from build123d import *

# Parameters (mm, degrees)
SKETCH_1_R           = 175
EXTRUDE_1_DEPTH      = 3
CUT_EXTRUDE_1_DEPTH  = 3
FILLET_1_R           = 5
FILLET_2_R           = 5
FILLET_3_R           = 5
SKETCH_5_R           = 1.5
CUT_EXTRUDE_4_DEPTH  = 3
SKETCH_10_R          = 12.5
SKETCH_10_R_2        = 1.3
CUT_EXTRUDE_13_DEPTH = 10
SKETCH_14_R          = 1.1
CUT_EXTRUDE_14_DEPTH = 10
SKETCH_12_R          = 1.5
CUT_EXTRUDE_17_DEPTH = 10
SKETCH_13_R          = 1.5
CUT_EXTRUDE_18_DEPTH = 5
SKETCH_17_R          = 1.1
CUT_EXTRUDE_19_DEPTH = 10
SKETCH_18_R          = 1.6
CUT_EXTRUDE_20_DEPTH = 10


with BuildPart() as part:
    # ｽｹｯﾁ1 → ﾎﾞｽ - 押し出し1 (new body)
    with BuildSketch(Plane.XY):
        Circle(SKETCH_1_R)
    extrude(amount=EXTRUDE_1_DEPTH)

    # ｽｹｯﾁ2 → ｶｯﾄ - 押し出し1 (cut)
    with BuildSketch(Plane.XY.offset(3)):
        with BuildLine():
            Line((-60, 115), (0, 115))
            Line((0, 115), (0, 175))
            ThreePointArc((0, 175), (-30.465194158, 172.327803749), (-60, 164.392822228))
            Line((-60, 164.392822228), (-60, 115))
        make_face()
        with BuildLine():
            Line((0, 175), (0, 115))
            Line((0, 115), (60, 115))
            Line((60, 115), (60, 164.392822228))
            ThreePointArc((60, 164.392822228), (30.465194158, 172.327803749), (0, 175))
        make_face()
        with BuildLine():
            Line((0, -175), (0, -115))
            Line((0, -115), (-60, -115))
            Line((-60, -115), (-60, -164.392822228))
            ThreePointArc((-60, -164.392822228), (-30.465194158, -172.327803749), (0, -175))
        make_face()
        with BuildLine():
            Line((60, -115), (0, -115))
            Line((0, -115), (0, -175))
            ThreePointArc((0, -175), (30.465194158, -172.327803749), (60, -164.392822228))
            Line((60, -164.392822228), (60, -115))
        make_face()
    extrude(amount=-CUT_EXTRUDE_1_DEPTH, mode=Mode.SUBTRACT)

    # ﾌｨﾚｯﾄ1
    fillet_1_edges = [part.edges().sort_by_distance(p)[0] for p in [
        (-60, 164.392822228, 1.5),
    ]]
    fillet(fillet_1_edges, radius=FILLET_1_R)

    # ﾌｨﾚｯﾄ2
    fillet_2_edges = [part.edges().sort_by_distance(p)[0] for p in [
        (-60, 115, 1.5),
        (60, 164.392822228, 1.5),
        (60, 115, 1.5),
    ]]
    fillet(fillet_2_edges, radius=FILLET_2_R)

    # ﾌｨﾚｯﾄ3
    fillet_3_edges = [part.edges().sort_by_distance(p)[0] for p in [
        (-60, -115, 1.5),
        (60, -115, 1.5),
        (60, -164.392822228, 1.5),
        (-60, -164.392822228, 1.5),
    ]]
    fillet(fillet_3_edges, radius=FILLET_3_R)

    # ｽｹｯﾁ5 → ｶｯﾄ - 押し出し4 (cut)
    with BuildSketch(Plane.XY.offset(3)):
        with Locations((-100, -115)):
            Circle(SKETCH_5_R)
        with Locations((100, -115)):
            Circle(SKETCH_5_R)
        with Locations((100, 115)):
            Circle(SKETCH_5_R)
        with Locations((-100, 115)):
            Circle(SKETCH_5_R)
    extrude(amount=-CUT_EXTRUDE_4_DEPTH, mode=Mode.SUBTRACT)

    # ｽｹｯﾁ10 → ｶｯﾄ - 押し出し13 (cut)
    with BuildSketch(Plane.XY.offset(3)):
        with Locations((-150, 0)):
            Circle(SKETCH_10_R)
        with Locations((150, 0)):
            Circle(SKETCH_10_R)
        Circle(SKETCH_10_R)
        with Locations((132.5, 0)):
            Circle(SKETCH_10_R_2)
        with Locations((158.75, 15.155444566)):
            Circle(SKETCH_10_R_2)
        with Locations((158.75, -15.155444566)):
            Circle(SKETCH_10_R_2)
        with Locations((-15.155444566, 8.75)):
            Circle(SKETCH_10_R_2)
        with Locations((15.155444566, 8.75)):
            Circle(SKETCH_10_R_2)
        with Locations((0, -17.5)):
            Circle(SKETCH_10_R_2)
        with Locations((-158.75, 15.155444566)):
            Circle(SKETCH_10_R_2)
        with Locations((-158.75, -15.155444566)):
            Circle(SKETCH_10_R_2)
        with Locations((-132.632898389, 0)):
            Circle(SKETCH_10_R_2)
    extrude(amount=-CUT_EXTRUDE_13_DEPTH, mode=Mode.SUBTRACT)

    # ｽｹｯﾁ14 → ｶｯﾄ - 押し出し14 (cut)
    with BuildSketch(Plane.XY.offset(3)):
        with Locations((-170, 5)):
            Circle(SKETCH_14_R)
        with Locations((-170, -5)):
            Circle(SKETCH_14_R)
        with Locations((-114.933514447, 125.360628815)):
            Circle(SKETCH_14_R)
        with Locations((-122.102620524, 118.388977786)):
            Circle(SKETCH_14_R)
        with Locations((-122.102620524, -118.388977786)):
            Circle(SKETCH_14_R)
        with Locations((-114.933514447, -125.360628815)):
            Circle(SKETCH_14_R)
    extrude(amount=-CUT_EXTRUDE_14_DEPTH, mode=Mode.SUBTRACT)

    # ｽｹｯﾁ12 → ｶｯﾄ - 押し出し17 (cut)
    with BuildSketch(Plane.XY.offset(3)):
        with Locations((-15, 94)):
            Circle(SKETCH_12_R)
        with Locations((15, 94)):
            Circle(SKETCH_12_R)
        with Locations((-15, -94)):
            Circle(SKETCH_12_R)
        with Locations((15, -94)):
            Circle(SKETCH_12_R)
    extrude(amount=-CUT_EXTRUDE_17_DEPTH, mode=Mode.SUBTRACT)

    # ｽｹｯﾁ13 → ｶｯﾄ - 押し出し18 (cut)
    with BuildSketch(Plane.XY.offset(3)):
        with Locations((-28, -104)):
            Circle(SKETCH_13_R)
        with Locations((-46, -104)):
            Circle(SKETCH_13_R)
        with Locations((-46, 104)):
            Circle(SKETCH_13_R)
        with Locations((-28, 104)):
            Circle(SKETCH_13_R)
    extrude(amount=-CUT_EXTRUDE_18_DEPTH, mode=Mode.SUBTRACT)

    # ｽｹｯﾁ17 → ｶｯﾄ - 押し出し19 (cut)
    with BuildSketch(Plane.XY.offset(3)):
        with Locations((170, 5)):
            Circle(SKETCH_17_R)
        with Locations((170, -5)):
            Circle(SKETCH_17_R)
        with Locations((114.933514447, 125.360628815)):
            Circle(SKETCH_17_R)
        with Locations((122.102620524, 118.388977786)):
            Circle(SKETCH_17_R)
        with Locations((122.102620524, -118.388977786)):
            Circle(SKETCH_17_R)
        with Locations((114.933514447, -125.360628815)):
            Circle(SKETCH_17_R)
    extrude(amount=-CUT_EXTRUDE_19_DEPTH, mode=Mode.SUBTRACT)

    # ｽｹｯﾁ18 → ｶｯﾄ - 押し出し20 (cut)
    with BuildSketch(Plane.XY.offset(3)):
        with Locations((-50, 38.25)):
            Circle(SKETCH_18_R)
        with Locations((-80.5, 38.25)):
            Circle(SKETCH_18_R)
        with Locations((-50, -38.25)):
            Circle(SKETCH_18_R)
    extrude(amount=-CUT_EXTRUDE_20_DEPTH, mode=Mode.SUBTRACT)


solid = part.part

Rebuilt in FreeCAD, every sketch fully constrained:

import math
import FreeCAD as App
import Part
import Sketcher

V = App.Vector


def edges_at(feature, points):
    """Names of the edges that pass closest to the given points."""
    edges = feature.Shape.Edges
    near = lambda p: min(range(len(edges)), key=lambda i: edges[i].distToShape(Part.Vertex(*p))[0])
    return sorted({f"Edge{near(p) + 1}" for p in points})

doc = App.newDocument("Part")
body = doc.addObject("PartDesign::Body", "Body")

# Sketch on XY plane
sketch1 = body.newObject("Sketcher::SketchObject", "Sketch")
sketch1.AttachmentSupport = (doc.getObject("XY_Plane"), [""])
sketch1.MapMode = "FlatFace"
sketch1.addGeometry(Part.Circle(V(0, 0, 0), V(0, 0, 1), 175), False)
sketch1.addConstraint(Sketcher.Constraint("Coincident", 0, 3, -1, 1))
sketch1.addConstraint(Sketcher.Constraint("Diameter", 0, 350.0))
pad1 = body.newObject("PartDesign::Pad", "Pad")
pad1.Profile = sketch1
pad1.Length = 3

# Sketch on XY plane
sketch2 = body.newObject("Sketcher::SketchObject", "Sketch001")
sketch2.AttachmentSupport = (doc.getObject("XY_Plane"), [""])
sketch2.MapMode = "FlatFace"
sketch2.AttachmentOffset = App.Placement(V(0, 0, 3), App.Rotation())
sketch2.addGeometry(Part.LineSegment(V(-60, 115, 0), V(60, 115, 0)), False)
sketch2.addGeometry(Part.LineSegment(V(60, 115, 0), V(60, 164.392822, 0)), False)
sketch2.addGeometry(Part.ArcOfCircle(Part.Circle(V(0, 0, 0), V(0, 0, 1), 175), math.radians(69.948957), math.radians(90)), False)
sketch2.addGeometry(Part.ArcOfCircle(Part.Circle(V(0, 0, 0), V(0, 0, 1), 175), math.radians(90), math.radians(110.051043)), False)
sketch2.addGeometry(Part.LineSegment(V(-60, 164.392822, 0), V(-60, 115, 0)), False)
sketch2.addGeometry(Part.LineSegment(V(-60, -115, 0), V(-60, -164.392822, 0)), False)
sketch2.addGeometry(Part.ArcOfCircle(Part.Circle(V(0, 0, 0), V(0, 0, 1), 175), math.radians(-110.051043), math.radians(-90)), False)
sketch2.addGeometry(Part.ArcOfCircle(Part.Circle(V(0, 0, 0), V(0, 0, 1), 175), math.radians(-90), math.radians(-69.948957)), False)
sketch2.addGeometry(Part.LineSegment(V(60, -164.392822, 0), V(60, -115, 0)), False)
sketch2.addGeometry(Part.LineSegment(V(60, -115, 0), V(-60, -115, 0)), False)
sketch2.addConstraint(Sketcher.Constraint("Coincident", 0, 2, 1, 1))
sketch2.addConstraint(Sketcher.Constraint("Coincident", 1, 2, 2, 1))
sketch2.addConstraint(Sketcher.Constraint("Tangent", 2, 2, 3, 1))
sketch2.addConstraint(Sketcher.Constraint("Coincident", 3, 2, 4, 1))
sketch2.addConstraint(Sketcher.Constraint("Coincident", 4, 2, 0, 1))
sketch2.addConstraint(Sketcher.Constraint("Coincident", 5, 2, 6, 1))
sketch2.addConstraint(Sketcher.Constraint("Tangent", 6, 2, 7, 1))
sketch2.addConstraint(Sketcher.Constraint("Coincident", 7, 2, 8, 1))
sketch2.addConstraint(Sketcher.Constraint("Coincident", 8, 2, 9, 1))
sketch2.addConstraint(Sketcher.Constraint("Coincident", 9, 2, 5, 1))
sketch2.addConstraint(Sketcher.Constraint("Horizontal", 0))
sketch2.addConstraint(Sketcher.Constraint("Vertical", 1))
sketch2.addConstraint(Sketcher.Constraint("Vertical", 4))
sketch2.addConstraint(Sketcher.Constraint("Vertical", 5))
sketch2.addConstraint(Sketcher.Constraint("Vertical", 8))
sketch2.addConstraint(Sketcher.Constraint("Horizontal", 9))
sketch2.addConstraint(Sketcher.Constraint("Coincident", 2, 3, -1, 1))
sketch2.addConstraint(Sketcher.Constraint("Coincident", 6, 3, -1, 1))
sketch2.addConstraint(Sketcher.Constraint("Equal", 2, 3))
sketch2.addConstraint(Sketcher.Constraint("Equal", 3, 6))
sketch2.addConstraint(Sketcher.Constraint("Equal", 6, 7))
sketch2.addConstraint(Sketcher.Constraint("Symmetric", 4, 2, 8, 2, -1, 1))
sketch2.addConstraint(Sketcher.Constraint("PointOnObject", 2, 2, -2))
sketch2.addConstraint(Sketcher.Constraint("PointOnObject", 6, 2, -2))
sketch2.addConstraint(Sketcher.Constraint("Horizontal", 1, 2, 3, 2))
sketch2.addConstraint(Sketcher.Constraint("Horizontal", 5, 2, 7, 2))
sketch2.addConstraint(Sketcher.Constraint("Radius", 2, 175.0))
sketch2.addConstraint(Sketcher.Constraint("DistanceX", 0, 1, 0, 2, 120.0))
sketch2.addConstraint(Sketcher.Constraint("DistanceY", -1, 1, 0, 2, 115.0))
pocket1 = body.newObject("PartDesign::Pocket", "Pocket")
pocket1.Profile = sketch2
pocket1.Length = 3
doc.recompute()

fillet = body.newObject("PartDesign::Fillet", "Fillet")
fillet.Base = (pocket1, edges_at(pocket1, [(-60, 164.393, 1.5)]))
fillet.Radius = 5
doc.recompute()

fillet2 = body.newObject("PartDesign::Fillet", "Fillet001")
fillet2.Base = (fillet, edges_at(fillet, [(-60, 115, 1.5), (60, 164.393, 1.5), (60, 115, 1.5)]))
fillet2.Radius = 5
doc.recompute()

fillet3 = body.newObject("PartDesign::Fillet", "Fillet002")
fillet3.Base = (fillet2, edges_at(fillet2, [
    (-60, -115, 1.5),
    (60, -115, 1.5),
    (60, -164.393, 1.5),
    (-60, -164.393, 1.5),
]))
fillet3.Radius = 5

# Sketch on XY plane
sketch3 = body.newObject("Sketcher::SketchObject", "Sketch002")
sketch3.AttachmentSupport = (doc.getObject("XY_Plane"), [""])
sketch3.MapMode = "FlatFace"
sketch3.AttachmentOffset = App.Placement(V(0, 0, 3), App.Rotation())
sketch3.addGeometry(Part.Circle(V(-100, -115, 0), V(0, 0, 1), 1.5), False)
sketch3.addGeometry(Part.Circle(V(100, -115, 0), V(0, 0, 1), 1.5), False)
sketch3.addGeometry(Part.Circle(V(100, 115, 0), V(0, 0, 1), 1.5), False)
sketch3.addGeometry(Part.Circle(V(-100, 115, 0), V(0, 0, 1), 1.5), False)
sketch3.addConstraint(Sketcher.Constraint("Equal", 0, 1))
sketch3.addConstraint(Sketcher.Constraint("Equal", 1, 2))
sketch3.addConstraint(Sketcher.Constraint("Equal", 2, 3))
sketch3.addConstraint(Sketcher.Constraint("Symmetric", 0, 3, 2, 3, -1, 1))
sketch3.addConstraint(Sketcher.Constraint("Symmetric", 1, 3, 3, 3, -1, 1))
sketch3.addConstraint(Sketcher.Constraint("Symmetric", 0, 3, 1, 3, -2))
sketch3.addConstraint(Sketcher.Constraint("Diameter", 0, 3.0))
sketch3.addConstraint(Sketcher.Constraint("DistanceX", 0, 3, -1, 1, 100.0))
sketch3.addConstraint(Sketcher.Constraint("DistanceY", 0, 3, -1, 1, 115.0))
pocket2 = body.newObject("PartDesign::Pocket", "Pocket001")
pocket2.Profile = sketch3
pocket2.Length = 3

# Sketch on XY plane
sketch4 = body.newObject("Sketcher::SketchObject", "Sketch003")
sketch4.AttachmentSupport = (doc.getObject("XY_Plane"), [""])
sketch4.MapMode = "FlatFace"
sketch4.AttachmentOffset = App.Placement(V(0, 0, 3), App.Rotation())
sketch4.addGeometry(Part.Circle(V(-150, 0, 0), V(0, 0, 1), 12.5), False)
sketch4.addGeometry(Part.Circle(V(150, 0, 0), V(0, 0, 1), 12.5), False)
sketch4.addGeometry(Part.Circle(V(0, 0, 0), V(0, 0, 1), 12.5), False)
sketch4.addGeometry(Part.Circle(V(132.5, 0, 0), V(0, 0, 1), 1.3), False)
sketch4.addGeometry(Part.Circle(V(158.75, 15.155445, 0), V(0, 0, 1), 1.3), False)
sketch4.addGeometry(Part.Circle(V(158.75, -15.155445, 0), V(0, 0, 1), 1.3), False)
sketch4.addGeometry(Part.Circle(V(-15.155445, 8.75, 0), V(0, 0, 1), 1.3), False)
sketch4.addGeometry(Part.Circle(V(15.155445, 8.75, 0), V(0, 0, 1), 1.3), False)
sketch4.addGeometry(Part.Circle(V(0, -17.5, 0), V(0, 0, 1), 1.3), False)
sketch4.addGeometry(Part.Circle(V(-158.75, 15.155445, 0), V(0, 0, 1), 1.3), False)
sketch4.addGeometry(Part.Circle(V(-158.75, -15.155445, 0), V(0, 0, 1), 1.3), False)
sketch4.addGeometry(Part.Circle(V(-132.632898, 0, 0), V(0, 0, 1), 1.3), False)
sketch4.addConstraint(Sketcher.Constraint("Coincident", 2, 3, -1, 1))
sketch4.addConstraint(Sketcher.Constraint("Equal", 0, 1))
sketch4.addConstraint(Sketcher.Constraint("Equal", 1, 2))
sketch4.addConstraint(Sketcher.Constraint("Equal", 3, 4))
sketch4.addConstraint(Sketcher.Constraint("Equal", 4, 5))
sketch4.addConstraint(Sketcher.Constraint("Equal", 5, 6))
sketch4.addConstraint(Sketcher.Constraint("Equal", 6, 7))
sketch4.addConstraint(Sketcher.Constraint("Equal", 7, 8))
sketch4.addConstraint(Sketcher.Constraint("Equal", 8, 9))
sketch4.addConstraint(Sketcher.Constraint("Equal", 9, 10))
sketch4.addConstraint(Sketcher.Constraint("Equal", 10, 11))
sketch4.addConstraint(Sketcher.Constraint("Symmetric", 0, 3, 1, 3, -1, 1))
sketch4.addConstraint(Sketcher.Constraint("Symmetric", 5, 3, 9, 3, -1, 1))
sketch4.addConstraint(Sketcher.Constraint("Symmetric", 4, 3, 10, 3, -1, 1))
sketch4.addConstraint(Sketcher.Constraint("Symmetric", 6, 3, 7, 3, -2))
sketch4.addConstraint(Sketcher.Constraint("Symmetric", 4, 3, 9, 3, -2))
sketch4.addConstraint(Sketcher.Constraint("PointOnObject", 0, 3, -1))
sketch4.addConstraint(Sketcher.Constraint("PointOnObject", 3, 3, -1))
sketch4.addConstraint(Sketcher.Constraint("PointOnObject", 8, 3, -2))
sketch4.addConstraint(Sketcher.Constraint("PointOnObject", 11, 3, -1))
sketch4.addConstraint(Sketcher.Constraint("Diameter", 0, 25.0))
sketch4.addConstraint(Sketcher.Constraint("Diameter", 3, 2.6))
sketch4.addConstraint(Sketcher.Constraint("DistanceX", 0, 3, -1, 1, 150.0))
sketch4.addConstraint(Sketcher.Constraint("DistanceX", -1, 1, 3, 3, 132.5))
sketch4.addConstraint(Sketcher.Constraint("DistanceY", 8, 3, -1, 1, 17.5))
sketch4.addConstraint(Sketcher.Constraint("DistanceX", -1, 1, 4, 3, 158.75))
sketch4.addConstraint(Sketcher.Constraint("DistanceY", -1, 1, 6, 3, 8.75))
sketch4.addConstraint(Sketcher.Constraint("DistanceX", 11, 3, -1, 1, 132.632898))
sketch4.addConstraint(Sketcher.Constraint("DistanceY", 5, 3, 4, 3, 30.310889))
sketch4.addConstraint(Sketcher.Constraint("DistanceX", 6, 3, 7, 3, 30.310889))
pocket3 = body.newObject("PartDesign::Pocket", "Pocket002")
pocket3.Profile = sketch4
pocket3.Length = 10

# Sketch on XY plane
sketch5 = body.newObject("Sketcher::SketchObject", "Sketch004")
sketch5.AttachmentSupport = (doc.getObject("XY_Plane"), [""])
sketch5.MapMode = "FlatFace"
sketch5.AttachmentOffset = App.Placement(V(0, 0, 3), App.Rotation())
sketch5.addGeometry(Part.Circle(V(-170, 5, 0), V(0, 0, 1), 1.1), False)
sketch5.addGeometry(Part.Circle(V(-170, -5, 0), V(0, 0, 1), 1.1), False)
sketch5.addGeometry(Part.Circle(V(-114.933514, 125.360629, 0), V(0, 0, 1), 1.1), False)
sketch5.addGeometry(Part.Circle(V(-122.102621, 118.388978, 0), V(0, 0, 1), 1.1), False)
sketch5.addGeometry(Part.Circle(V(-122.102621, -118.388978, 0), V(0, 0, 1), 1.1), False)
sketch5.addGeometry(Part.Circle(V(-114.933514, -125.360629, 0), V(0, 0, 1), 1.1), False)
sketch5.addConstraint(Sketcher.Constraint("Equal", 0, 1))
sketch5.addConstraint(Sketcher.Constraint("Equal", 1, 2))
sketch5.addConstraint(Sketcher.Constraint("Equal", 2, 3))
sketch5.addConstraint(Sketcher.Constraint("Equal", 3, 4))
sketch5.addConstraint(Sketcher.Constraint("Equal", 4, 5))
sketch5.addConstraint(Sketcher.Constraint("Symmetric", 0, 3, 1, 3, -1))
sketch5.addConstraint(Sketcher.Constraint("Symmetric", 3, 3, 4, 3, -1))
sketch5.addConstraint(Sketcher.Constraint("Symmetric", 2, 3, 5, 3, -1))
sketch5.addConstraint(Sketcher.Constraint("Diameter", 0, 2.2))
sketch5.addConstraint(Sketcher.Constraint("DistanceX", 0, 3, -1, 1, 170.0))
sketch5.addConstraint(Sketcher.Constraint("DistanceY", -1, 1, 0, 3, 5.0))
sketch5.addConstraint(Sketcher.Constraint("DistanceY", -1, 1, 2, 3, 125.360629))
sketch5.addConstraint(Sketcher.Constraint("DistanceX", 3, 3, -1, 1, 122.102621))
sketch5.addConstraint(Sketcher.Constraint("DistanceY", 3, 3, 2, 3, 6.971651))
sketch5.addConstraint(Sketcher.Constraint("DistanceX", 2, 3, -1, 1, 114.933514))
pocket4 = body.newObject("PartDesign::Pocket", "Pocket003")
pocket4.Profile = sketch5
pocket4.Length = 10

# Sketch on XY plane
sketch6 = body.newObject("Sketcher::SketchObject", "Sketch005")
sketch6.AttachmentSupport = (doc.getObject("XY_Plane"), [""])
sketch6.MapMode = "FlatFace"
sketch6.AttachmentOffset = App.Placement(V(0, 0, 3), App.Rotation())
sketch6.addGeometry(Part.Circle(V(-15, 94, 0), V(0, 0, 1), 1.5), False)
sketch6.addGeometry(Part.Circle(V(15, 94, 0), V(0, 0, 1), 1.5), False)
sketch6.addGeometry(Part.Circle(V(-15, -94, 0), V(0, 0, 1), 1.5), False)
sketch6.addGeometry(Part.Circle(V(15, -94, 0), V(0, 0, 1), 1.5), False)
sketch6.addConstraint(Sketcher.Constraint("Equal", 0, 1))
sketch6.addConstraint(Sketcher.Constraint("Equal", 1, 2))
sketch6.addConstraint(Sketcher.Constraint("Equal", 2, 3))
sketch6.addConstraint(Sketcher.Constraint("Symmetric", 1, 3, 2, 3, -1, 1))
sketch6.addConstraint(Sketcher.Constraint("Symmetric", 0, 3, 3, 3, -1, 1))
sketch6.addConstraint(Sketcher.Constraint("Symmetric", 0, 3, 1, 3, -2))
sketch6.addConstraint(Sketcher.Constraint("Diameter", 0, 3.0))
sketch6.addConstraint(Sketcher.Constraint("DistanceX", 0, 3, -1, 1, 15.0))
sketch6.addConstraint(Sketcher.Constraint("DistanceY", -1, 1, 0, 3, 94.0))
pocket5 = body.newObject("PartDesign::Pocket", "Pocket004")
pocket5.Profile = sketch6
pocket5.Length = 10

# Sketch on XY plane
sketch7 = body.newObject("Sketcher::SketchObject", "Sketch006")
sketch7.AttachmentSupport = (doc.getObject("XY_Plane"), [""])
sketch7.MapMode = "FlatFace"
sketch7.AttachmentOffset = App.Placement(V(0, 0, 3), App.Rotation())
sketch7.addGeometry(Part.Circle(V(-28, -104, 0), V(0, 0, 1), 1.5), False)
sketch7.addGeometry(Part.Circle(V(-46, -104, 0), V(0, 0, 1), 1.5), False)
sketch7.addGeometry(Part.Circle(V(-46, 104, 0), V(0, 0, 1), 1.5), False)
sketch7.addGeometry(Part.Circle(V(-28, 104, 0), V(0, 0, 1), 1.5), False)
sketch7.addConstraint(Sketcher.Constraint("Equal", 0, 1))
sketch7.addConstraint(Sketcher.Constraint("Equal", 1, 2))
sketch7.addConstraint(Sketcher.Constraint("Equal", 2, 3))
sketch7.addConstraint(Sketcher.Constraint("Symmetric", 1, 3, 2, 3, -1))
sketch7.addConstraint(Sketcher.Constraint("Symmetric", 0, 3, 3, 3, -1))
sketch7.addConstraint(Sketcher.Constraint("Horizontal", 0, 3, 1, 3))
sketch7.addConstraint(Sketcher.Constraint("Diameter", 0, 3.0))
sketch7.addConstraint(Sketcher.Constraint("DistanceX", 0, 3, -1, 1, 28.0))
sketch7.addConstraint(Sketcher.Constraint("DistanceY", 0, 3, -1, 1, 104.0))
sketch7.addConstraint(Sketcher.Constraint("DistanceX", 1, 3, -1, 1, 46.0))
pocket6 = body.newObject("PartDesign::Pocket", "Pocket005")
pocket6.Profile = sketch7
pocket6.Length = 5

# Sketch on XY plane
sketch8 = body.newObject("Sketcher::SketchObject", "Sketch007")
sketch8.AttachmentSupport = (doc.getObject("XY_Plane"), [""])
sketch8.MapMode = "FlatFace"
sketch8.AttachmentOffset = App.Placement(V(0, 0, 3), App.Rotation())
sketch8.addGeometry(Part.Circle(V(170, 5, 0), V(0, 0, 1), 1.1), False)
sketch8.addGeometry(Part.Circle(V(170, -5, 0), V(0, 0, 1), 1.1), False)
sketch8.addGeometry(Part.Circle(V(114.933514, 125.360629, 0), V(0, 0, 1), 1.1), False)
sketch8.addGeometry(Part.Circle(V(122.102621, 118.388978, 0), V(0, 0, 1), 1.1), False)
sketch8.addGeometry(Part.Circle(V(122.102621, -118.388978, 0), V(0, 0, 1), 1.1), False)
sketch8.addGeometry(Part.Circle(V(114.933514, -125.360629, 0), V(0, 0, 1), 1.1), False)
sketch8.addConstraint(Sketcher.Constraint("Equal", 0, 1))
sketch8.addConstraint(Sketcher.Constraint("Equal", 1, 2))
sketch8.addConstraint(Sketcher.Constraint("Equal", 2, 3))
sketch8.addConstraint(Sketcher.Constraint("Equal", 3, 4))
sketch8.addConstraint(Sketcher.Constraint("Equal", 4, 5))
sketch8.addConstraint(Sketcher.Constraint("Symmetric", 0, 3, 1, 3, -1))
sketch8.addConstraint(Sketcher.Constraint("Symmetric", 3, 3, 4, 3, -1))
sketch8.addConstraint(Sketcher.Constraint("Symmetric", 2, 3, 5, 3, -1))
sketch8.addConstraint(Sketcher.Constraint("Diameter", 0, 2.2))
sketch8.addConstraint(Sketcher.Constraint("DistanceX", -1, 1, 0, 3, 170.0))
sketch8.addConstraint(Sketcher.Constraint("DistanceY", -1, 1, 0, 3, 5.0))
sketch8.addConstraint(Sketcher.Constraint("DistanceY", -1, 1, 2, 3, 125.360629))
sketch8.addConstraint(Sketcher.Constraint("DistanceX", -1, 1, 3, 3, 122.102621))
sketch8.addConstraint(Sketcher.Constraint("DistanceY", 3, 3, 2, 3, 6.971651))
sketch8.addConstraint(Sketcher.Constraint("DistanceX", -1, 1, 2, 3, 114.933514))
pocket7 = body.newObject("PartDesign::Pocket", "Pocket006")
pocket7.Profile = sketch8
pocket7.Length = 10

# Sketch on XY plane
sketch9 = body.newObject("Sketcher::SketchObject", "Sketch008")
sketch9.AttachmentSupport = (doc.getObject("XY_Plane"), [""])
sketch9.MapMode = "FlatFace"
sketch9.AttachmentOffset = App.Placement(V(0, 0, 3), App.Rotation())
sketch9.addGeometry(Part.Circle(V(-50, 38.25, 0), V(0, 0, 1), 1.6), False)
sketch9.addGeometry(Part.Circle(V(-80.5, 38.25, 0), V(0, 0, 1), 1.6), False)
sketch9.addGeometry(Part.Circle(V(-50, -38.25, 0), V(0, 0, 1), 1.6), False)
sketch9.addConstraint(Sketcher.Constraint("Equal", 0, 1))
sketch9.addConstraint(Sketcher.Constraint("Equal", 1, 2))
sketch9.addConstraint(Sketcher.Constraint("Symmetric", 0, 3, 2, 3, -1))
sketch9.addConstraint(Sketcher.Constraint("Horizontal", 0, 3, 1, 3))
sketch9.addConstraint(Sketcher.Constraint("Diameter", 0, 3.2))
sketch9.addConstraint(Sketcher.Constraint("DistanceX", 0, 3, -1, 1, 50.0))
sketch9.addConstraint(Sketcher.Constraint("DistanceX", 1, 3, -1, 1, 80.5))
sketch9.addConstraint(Sketcher.Constraint("DistanceY", 2, 3, 0, 3, 76.5))
pocket8 = body.newObject("PartDesign::Pocket", "Pocket007")
pocket8.Profile = sketch9
pocket8.Length = 10

doc.recompute()
